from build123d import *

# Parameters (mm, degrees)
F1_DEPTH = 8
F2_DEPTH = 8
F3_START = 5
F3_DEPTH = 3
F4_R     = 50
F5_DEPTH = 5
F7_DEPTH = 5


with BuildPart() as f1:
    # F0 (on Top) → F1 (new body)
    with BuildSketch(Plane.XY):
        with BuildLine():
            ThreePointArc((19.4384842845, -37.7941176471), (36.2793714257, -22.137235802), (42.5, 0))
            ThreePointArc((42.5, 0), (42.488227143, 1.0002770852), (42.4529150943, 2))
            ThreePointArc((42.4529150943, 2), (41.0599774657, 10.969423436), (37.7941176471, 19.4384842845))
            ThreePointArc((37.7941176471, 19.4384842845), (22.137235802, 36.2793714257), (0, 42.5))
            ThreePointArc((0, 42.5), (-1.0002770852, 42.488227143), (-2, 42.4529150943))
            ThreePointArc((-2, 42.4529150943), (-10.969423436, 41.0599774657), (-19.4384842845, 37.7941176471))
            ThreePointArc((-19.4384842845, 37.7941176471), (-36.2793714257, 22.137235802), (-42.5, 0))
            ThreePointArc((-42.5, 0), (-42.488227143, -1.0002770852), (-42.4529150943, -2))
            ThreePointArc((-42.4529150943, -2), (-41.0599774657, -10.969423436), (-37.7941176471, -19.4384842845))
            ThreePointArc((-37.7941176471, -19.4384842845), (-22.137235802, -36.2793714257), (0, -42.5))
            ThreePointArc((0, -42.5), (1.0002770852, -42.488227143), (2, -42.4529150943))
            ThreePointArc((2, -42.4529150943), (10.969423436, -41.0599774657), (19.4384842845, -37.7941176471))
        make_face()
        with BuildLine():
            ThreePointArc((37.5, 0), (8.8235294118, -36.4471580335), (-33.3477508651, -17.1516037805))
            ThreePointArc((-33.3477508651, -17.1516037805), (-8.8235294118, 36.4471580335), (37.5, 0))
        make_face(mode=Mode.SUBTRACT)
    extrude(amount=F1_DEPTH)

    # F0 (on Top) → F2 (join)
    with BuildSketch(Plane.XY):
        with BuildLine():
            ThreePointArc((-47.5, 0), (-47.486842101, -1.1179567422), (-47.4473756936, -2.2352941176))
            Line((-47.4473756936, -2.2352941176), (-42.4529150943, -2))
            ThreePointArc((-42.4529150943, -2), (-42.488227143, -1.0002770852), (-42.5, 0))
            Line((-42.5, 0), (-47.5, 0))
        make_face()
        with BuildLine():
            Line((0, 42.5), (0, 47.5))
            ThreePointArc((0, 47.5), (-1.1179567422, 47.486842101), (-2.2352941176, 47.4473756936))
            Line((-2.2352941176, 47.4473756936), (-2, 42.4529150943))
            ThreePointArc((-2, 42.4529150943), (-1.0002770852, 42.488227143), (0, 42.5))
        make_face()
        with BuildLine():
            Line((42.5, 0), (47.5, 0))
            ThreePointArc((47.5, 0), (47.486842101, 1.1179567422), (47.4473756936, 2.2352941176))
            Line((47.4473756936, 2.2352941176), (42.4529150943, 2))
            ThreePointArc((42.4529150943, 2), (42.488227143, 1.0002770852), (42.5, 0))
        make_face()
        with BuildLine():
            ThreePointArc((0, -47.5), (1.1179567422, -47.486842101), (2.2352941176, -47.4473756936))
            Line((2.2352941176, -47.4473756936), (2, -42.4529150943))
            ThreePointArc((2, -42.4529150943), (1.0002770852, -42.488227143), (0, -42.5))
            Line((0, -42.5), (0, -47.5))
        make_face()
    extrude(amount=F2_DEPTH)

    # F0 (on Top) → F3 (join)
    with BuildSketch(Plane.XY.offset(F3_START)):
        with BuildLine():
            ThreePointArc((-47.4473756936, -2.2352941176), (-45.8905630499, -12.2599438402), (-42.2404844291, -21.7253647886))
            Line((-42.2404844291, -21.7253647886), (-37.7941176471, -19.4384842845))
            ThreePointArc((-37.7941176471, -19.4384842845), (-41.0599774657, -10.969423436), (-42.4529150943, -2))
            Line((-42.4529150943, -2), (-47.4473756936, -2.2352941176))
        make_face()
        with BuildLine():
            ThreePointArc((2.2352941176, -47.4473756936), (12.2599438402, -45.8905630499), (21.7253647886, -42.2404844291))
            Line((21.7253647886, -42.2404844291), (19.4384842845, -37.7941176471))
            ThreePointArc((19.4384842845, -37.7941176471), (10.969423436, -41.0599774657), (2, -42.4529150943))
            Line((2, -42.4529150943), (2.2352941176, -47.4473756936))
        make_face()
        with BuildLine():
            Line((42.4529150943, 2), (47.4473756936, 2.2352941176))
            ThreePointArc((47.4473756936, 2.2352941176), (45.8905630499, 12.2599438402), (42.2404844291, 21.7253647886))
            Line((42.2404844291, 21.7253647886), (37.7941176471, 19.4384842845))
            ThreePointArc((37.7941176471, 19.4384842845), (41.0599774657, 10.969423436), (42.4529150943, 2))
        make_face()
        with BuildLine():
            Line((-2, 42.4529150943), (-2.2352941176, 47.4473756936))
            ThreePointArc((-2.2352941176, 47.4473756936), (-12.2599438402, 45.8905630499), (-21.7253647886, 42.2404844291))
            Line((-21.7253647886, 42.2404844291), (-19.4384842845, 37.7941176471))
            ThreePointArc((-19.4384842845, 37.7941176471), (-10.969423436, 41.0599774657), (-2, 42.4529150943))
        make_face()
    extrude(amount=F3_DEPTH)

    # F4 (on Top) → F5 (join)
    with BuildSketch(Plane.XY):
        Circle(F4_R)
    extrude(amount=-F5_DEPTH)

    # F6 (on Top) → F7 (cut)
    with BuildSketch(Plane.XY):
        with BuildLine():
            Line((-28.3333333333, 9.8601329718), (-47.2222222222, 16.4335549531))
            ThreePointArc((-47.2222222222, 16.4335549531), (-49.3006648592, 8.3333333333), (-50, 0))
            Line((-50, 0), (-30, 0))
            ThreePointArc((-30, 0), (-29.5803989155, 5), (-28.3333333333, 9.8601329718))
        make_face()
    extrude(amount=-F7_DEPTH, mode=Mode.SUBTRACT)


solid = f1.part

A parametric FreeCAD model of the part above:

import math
import FreeCAD as App
import Part
import Sketcher
from FreeCAD import Vector
Q = App.Units.Quantity

doc = App.newDocument("Part")
body = doc.addObject("PartDesign::Body", "Body")

# Sketch on XY plane
sketch1 = body.newObject("Sketcher::SketchObject", "Sketch")
sketch1.AttachmentSupport = (doc.getObject("XY_Plane"), [""])
sketch1.MapMode = "FlatFace"
sketch1.addGeometry(Part.ArcOfCircle(Part.Circle(Vector(0, 0, 0), Vector(0, 0, 1), 42.5), math.radians(-62.782079), math.radians(0)), False)
sketch1.addGeometry(Part.ArcOfCircle(Part.Circle(Vector(0, 0, 0), Vector(0, 0, 1), 42.5), math.radians(0), math.radians(2.697268)), False)
sketch1.addGeometry(Part.ArcOfCircle(Part.Circle(Vector(0, 0, 0), Vector(0, 0, 1), 42.5), math.radians(2.697268), math.radians(27.217921)), False)
sketch1.addGeometry(Part.ArcOfCircle(Part.Circle(Vector(0, 0, 0), Vector(0, 0, 1), 42.5), math.radians(27.217921), math.radians(90)), False)
sketch1.addGeometry(Part.ArcOfCircle(Part.Circle(Vector(0, 0, 0), Vector(0, 0, 1), 42.5), math.radians(90), math.radians(92.697268)), False)
sketch1.addGeometry(Part.ArcOfCircle(Part.Circle(Vector(0, 0, 0), Vector(0, 0, 1), 42.5), math.radians(92.697268), math.radians(117.217921)), False)
sketch1.addGeometry(Part.ArcOfCircle(Part.Circle(Vector(0, 0, 0), Vector(0, 0, 1), 42.5), math.radians(117.217921), math.radians(180)), False)
sketch1.addGeometry(Part.ArcOfCircle(Part.Circle(Vector(0, 0, 0), Vector(0, 0, 1), 42.5), math.radians(180), math.radians(182.697268)), False)
sketch1.addGeometry(Part.ArcOfCircle(Part.Circle(Vector(0, 0, 0), Vector(0, 0, 1), 42.5), math.radians(-177.302732), math.radians(-152.782079)), False)
sketch1.addGeometry(Part.ArcOfCircle(Part.Circle(Vector(0, 0, 0), Vector(0, 0, 1), 42.5), math.radians(-152.782079), math.radians(-90)), False)
sketch1.addGeometry(Part.ArcOfCircle(Part.Circle(Vector(0, 0, 0), Vector(0, 0, 1), 42.5), math.radians(-90), math.radians(-87.302732)), False)
sketch1.addGeometry(Part.ArcOfCircle(Part.Circle(Vector(0, 0, 0), Vector(0, 0, 1), 42.5), math.radians(-87.302732), math.radians(-62.782079)), False)
sketch1.addGeometry(Part.ArcOfCircle(Part.Circle(Vector(0, 0, 0), Vector(0, 0, 1), 37.5), math.radians(0), math.radians(207.217921)), False)
sketch1.addGeometry(Part.ArcOfCircle(Part.Circle(Vector(0, 0, 0), Vector(0, 0, 1), 37.5), math.radians(-152.782079), math.radians(0)), False)
sketch1.addConstraint(Sketcher.Constraint("Tangent", 0, 2, 1, 1))
sketch1.addConstraint(Sketcher.Constraint("Tangent", 1, 2, 2, 1))
sketch1.addConstraint(Sketcher.Constraint("Tangent", 2, 2, 3, 1))
sketch1.addConstraint(Sketcher.Constraint("Tangent", 3, 2, 4, 1))
sketch1.addConstraint(Sketcher.Constraint("Tangent", 4, 2, 5, 1))
sketch1.addConstraint(Sketcher.Constraint("Tangent", 5, 2, 6, 1))
sketch1.addConstraint(Sketcher.Constraint("Tangent", 6, 2, 7, 1))
sketch1.addConstraint(Sketcher.Constraint("Tangent", 7, 2, 8, 1))
sketch1.addConstraint(Sketcher.Constraint("Tangent", 8, 2, 9, 1))
sketch1.addConstraint(Sketcher.Constraint("Tangent", 9, 2, 10, 1))
sketch1.addConstraint(Sketcher.Constraint("Tangent", 10, 2, 11, 1))
sketch1.addConstraint(Sketcher.Constraint("Tangent", 11, 2, 0, 1))
sketch1.addConstraint(Sketcher.Constraint("Tangent", 12, 1, 13, 2))
sketch1.addConstraint(Sketcher.Constraint("Coincident", 13, 1, 12, 2))
sketch1.addConstraint(Sketcher.Constraint("Coincident", 0, 3, -1, 1))
sketch1.addConstraint(Sketcher.Constraint("Coincident", 2, 3, -1, 1))
sketch1.addConstraint(Sketcher.Constraint("Coincident", 4, 3, -1, 1))
sketch1.addConstraint(Sketcher.Constraint("Coincident", 6, 3, -1, 1))
sketch1.addConstraint(Sketcher.Constraint("Coincident", 8, 3, -1, 1))
sketch1.addConstraint(Sketcher.Constraint("Coincident", 12, 3, -1, 1))
sketch1.addConstraint(Sketcher.Constraint("Equal", 8, 9))
sketch1.addConstraint(Sketcher.Constraint("PointOnObject", 0, 2, -1))
sketch1.addConstraint(Sketcher.Constraint("PointOnObject", 3, 2, -2))
sketch1.addConstraint(Sketcher.Constraint("PointOnObject", 6, 2, -1))
sketch1.addConstraint(Sketcher.Constraint("PointOnObject", 9, 2, -2))
sketch1.addConstraint(Sketcher.Constraint("PointOnObject", 12, 1, -1))
sketch1.addConstraint(Sketcher.Constraint("Radius", 0, Q("42.5 mm")))
sketch1.addConstraint(Sketcher.Constraint("Radius", 12, Q("37.5 mm")))
sketch1.addConstraint(Sketcher.Constraint("DistanceY", -1, 1, 1, 2, Q("2 mm")))
sketch1.addConstraint(Sketcher.Constraint("DistanceX", 4, 2, -1, 1, Q("2 mm")))
sketch1.addConstraint(Sketcher.Constraint("DistanceY", 7, 2, -1, 1, Q("2 mm")))
sketch1.addConstraint(Sketcher.Constraint("DistanceX", -1, 1, 10, 2, Q("2 mm")))
sketch1.addConstraint(Sketcher.Constraint("DistanceX", 13, 1, -1, 1, Q("33.347751 mm")))
sketch1.addConstraint(Sketcher.Constraint("DistanceY", 8, 2, 13, 1, Q("2.286881 mm")))
sketch1.addConstraint(Sketcher.Constraint("DistanceX", -1, 1, 2, 2, Q("37.794118 mm")))
sketch1.addConstraint(Sketcher.Constraint("DistanceX", 5, 2, -1, 1, Q("19.438484 mm")))
sketch1.addConstraint(Sketcher.Constraint("DistanceX", -1, 1, 11, 2, Q("19.438484 mm")))
pad1 = body.newObject("PartDesign::Pad", "Pad")
pad1.Profile = sketch1
pad1.Length = 8

# Sketch on XY plane
sketch2 = body.newObject("Sketcher::SketchObject", "Sketch001")
sketch2.AttachmentSupport = (doc.getObject("XY_Plane"), [""])
sketch2.MapMode = "FlatFace"
sketch2.addGeometry(Part.ArcOfCircle(Part.Circle(Vector(0, 0, 0), Vector(0, 0, 1), 47.5), math.radians(180), math.radians(182.697268)), False)
sketch2.addGeometry(Part.LineSegment(Vector(-47.447376, -2.235294, 0), Vector(-42.452915, -2, 0)), False)
sketch2.addGeometry(Part.ArcOfCircle(Part.Circle(Vector(0, 0, 0), Vector(0, 0, 1), 42.5), math.radians(180), math.radians(182.697268)), False)
sketch2.addGeometry(Part.LineSegment(Vector(-42.5, 0, 0), Vector(-47.5, 0, 0)), False)
sketch2.addGeometry(Part.LineSegment(Vector(0, 42.5, 0), Vector(0, 47.5, 0)), False)
sketch2.addGeometry(Part.ArcOfCircle(Part.Circle(Vector(0, 0, 0), Vector(0, 0, 1), 47.5), math.radians(90), math.radians(92.697268)), False)
sketch2.addGeometry(Part.LineSegment(Vector(-2.235294, 47.447376, 0), Vector(-2, 42.452915, 0)), False)
sketch2.addGeometry(Part.ArcOfCircle(Part.Circle(Vector(0, 0, 0), Vector(0, 0, 1), 42.5), math.radians(90), math.radians(92.697268)), False)
sketch2.addGeometry(Part.LineSegment(Vector(42.5, 0, 0), Vector(47.5, 0, 0)), False)
sketch2.addGeometry(Part.ArcOfCircle(Part.Circle(Vector(0, 0, 0), Vector(0, 0, 1), 47.5), math.radians(0), math.radians(2.697268)), False)
sketch2.addGeometry(Part.LineSegment(Vector(47.447376, 2.235294, 0), Vector(42.452915, 2, 0)), False)
sketch2.addGeometry(Part.ArcOfCircle(Part.Circle(Vector(0, 0, 0), Vector(0, 0, 1), 42.5), math.radians(0), math.radians(2.697268)), False)
sketch2.addGeometry(Part.ArcOfCircle(Part.Circle(Vector(0, 0, 0), Vector(0, 0, 1), 47.5), math.radians(-90), math.radians(-87.302732)), False)
sketch2.addGeometry(Part.LineSegment(Vector(2.235294, -47.447376, 0), Vector(2, -42.452915, 0)), False)
sketch2.addGeometry(Part.ArcOfCircle(Part.Circle(Vector(0, 0, 0), Vector(0, 0, 1), 42.5), math.radians(-90), math.radians(-87.302732)), False)
sketch2.addGeometry(Part.LineSegment(Vector(0, -42.5, 0), Vector(0, -47.5, 0)), False)
sketch2.addConstraint(Sketcher.Constraint("Coincident", 0, 2, 1, 1))
sketch2.addConstraint(Sketcher.Constraint("Coincident", 1, 2, 2, 2))
sketch2.addConstraint(Sketcher.Constraint("Coincident", 2, 1, 3, 1))
sketch2.addConstraint(Sketcher.Constraint("Coincident", 3, 2, 0, 1))
sketch2.addConstraint(Sketcher.Constraint("Coincident", 4, 2, 5, 1))
sketch2.addConstraint(Sketcher.Constraint("Coincident", 5, 2, 6, 1))
sketch2.addConstraint(Sketcher.Constraint("Coincident", 6, 2, 7, 2))
sketch2.addConstraint(Sketcher.Constraint("Coincident", 7, 1, 4, 1))
sketch2.addConstraint(Sketcher.Constraint("Coincident", 8, 2, 9, 1))
sketch2.addConstraint(Sketcher.Constraint("Coincident", 9, 2, 10, 1))
sketch2.addConstraint(Sketcher.Constraint("Coincident", 10, 2, 11, 2))
sketch2.addConstraint(Sketcher.Constraint("Coincident", 11, 1, 8, 1))
sketch2.addConstraint(Sketcher.Constraint("Coincident", 12, 2, 13, 1))
sketch2.addConstraint(Sketcher.Constraint("Coincident", 13, 2, 14, 2))
sketch2.addConstraint(Sketcher.Constraint("Coincident", 14, 1, 15, 1))
sketch2.addConstraint(Sketcher.Constraint("Coincident", 15, 2, 12, 1))
sketch2.addConstraint(Sketcher.Constraint("Horizontal", 3))
sketch2.addConstraint(Sketcher.Constraint("Vertical", 4))
sketch2.addConstraint(Sketcher.Constraint("Horizontal", 8))
sketch2.addConstraint(Sketcher.Constraint("Vertical", 15))
sketch2.addConstraint(Sketcher.Constraint("Coincident", 0, 3, -1, 1))
sketch2.addConstraint(Sketcher.Constraint("Coincident", 2, 3, -1, 1))
sketch2.addConstraint(Sketcher.Constraint("Coincident", 5, 3, -1, 1))
sketch2.addConstraint(Sketcher.Constraint("Coincident", 7, 3, -1, 1))
sketch2.addConstraint(Sketcher.Constraint("Coincident", 9, 3, -1, 1))
sketch2.addConstraint(Sketcher.Constraint("Coincident", 11, 3, -1, 1))
sketch2.addConstraint(Sketcher.Constraint("Coincident", 12, 3, -1, 1))
sketch2.addConstraint(Sketcher.Constraint("Coincident", 14, 3, -1, 1))
sketch2.addConstraint(Sketcher.Constraint("Equal", 0, 5))
sketch2.addConstraint(Sketcher.Constraint("Equal", 2, 7))
sketch2.addConstraint(Sketcher.Constraint("Equal", 5, 9))
sketch2.addConstraint(Sketcher.Constraint("Equal", 7, 11))
sketch2.addConstraint(Sketcher.Constraint("Equal", 9, 12))
sketch2.addConstraint(Sketcher.Constraint("Equal", 11, 14))
sketch2.addConstraint(Sketcher.Constraint("PointOnObject", 2, 1, -1))
sketch2.addConstraint(Sketcher.Constraint("PointOnObject", 4, 2, -2))
sketch2.addConstraint(Sketcher.Constraint("PointOnObject", 8, 2, -1))
sketch2.addConstraint(Sketcher.Constraint("PointOnObject", 14, 1, -2))
sketch2.addConstraint(Sketcher.Constraint("Perpendicular", 1, 6))
sketch2.addConstraint(Sketcher.Constraint("Perpendicular", 6, 10))
sketch2.addConstraint(Sketcher.Constraint("Perpendicular", 10, 13))
sketch2.addConstraint(Sketcher.Constraint("Radius", 0, Q("47.5 mm")))
sketch2.addConstraint(Sketcher.Constraint("Radius", 2, Q("42.5 mm")))
sketch2.addConstraint(Sketcher.Constraint("DistanceY", 1, 2, -1, 1, Q("2 mm")))
sketch2.addConstraint(Sketcher.Constraint("DistanceX", 6, 2, -1, 1, Q("2 mm")))
sketch2.addConstraint(Sketcher.Constraint("DistanceY", -1, 1, 10, 2, Q("2 mm")))
sketch2.addConstraint(Sketcher.Constraint("DistanceX", -1, 1, 13, 2, Q("2 mm")))
sketch2.addConstraint(Sketcher.Constraint("DistanceX", 0, 2, 1, 2, Q("4.994461 mm")))
pad2 = body.newObject("PartDesign::Pad", "Pad001")
pad2.Profile = sketch2
pad2.Length = 8

# Sketch on XY plane
sketch3 = body.newObject("Sketcher::SketchObject", "Sketch002")
sketch3.AttachmentSupport = (doc.getObject("XY_Plane"), [""])
sketch3.MapMode = "FlatFace"
sketch3.AttachmentOffset = App.Placement(Vector(0, 0, 5), App.Rotation())
sketch3.addGeometry(Part.ArcOfCircle(Part.Circle(Vector(0, 0, 0), Vector(0, 0, 1), 47.5), math.radians(-177.302732), math.radians(-152.782079)), False)
sketch3.addGeometry(Part.LineSegment(Vector(-42.240484, -21.725365, 0), Vector(-37.794118, -19.438484, 0)), False)
sketch3.addGeometry(Part.ArcOfCircle(Part.Circle(Vector(0, 0, 0), Vector(0, 0, 1), 42.5), math.radians(-177.302732), math.radians(-152.782079)), False)
sketch3.addGeometry(Part.LineSegment(Vector(-42.452915, -2, 0), Vector(-47.447376, -2.235294, 0)), False)
sketch3.addGeometry(Part.ArcOfCircle(Part.Circle(Vector(0, 0, 0), Vector(0, 0, 1), 47.5), math.radians(-87.302732), math.radians(-62.782079)), False)
sketch3.addGeometry(Part.LineSegment(Vector(21.725365, -42.240484, 0), Vector(19.438484, -37.794118, 0)), False)
sketch3.addGeometry(Part.ArcOfCircle(Part.Circle(Vector(0, 0, 0), Vector(0, 0, 1), 42.5), math.radians(-87.302732), math.radians(-62.782079)), False)
sketch3.addGeometry(Part.LineSegment(Vector(2, -42.452915, 0), Vector(2.235294, -47.447376, 0)), False)
sketch3.addGeometry(Part.LineSegment(Vector(42.452915, 2, 0), Vector(47.447376, 2.235294, 0)), False)
sketch3.addGeometry(Part.ArcOfCircle(Part.Circle(Vector(0, 0, 0), Vector(0, 0, 1), 47.5), math.radians(2.697268), math.radians(27.217921)), False)
sketch3.addGeometry(Part.LineSegment(Vector(42.240484, 21.725365, 0), Vector(37.794118, 19.438484, 0)), False)
sketch3.addGeometry(Part.ArcOfCircle(Part.Circle(Vector(0, 0, 0), Vector(0, 0, 1), 42.5), math.radians(2.697268), math.radians(27.217921)), False)
sketch3.addGeometry(Part.LineSegment(Vector(-2, 42.452915, 0), Vector(-2.235294, 47.447376, 0)), False)
sketch3.addGeometry(Part.ArcOfCircle(Part.Circle(Vector(0, 0, 0), Vector(0, 0, 1), 47.5), math.radians(92.697268), math.radians(117.217921)), False)
sketch3.addGeometry(Part.LineSegment(Vector(-21.725365, 42.240484, 0), Vector(-19.438484, 37.794118, 0)), False)
sketch3.addGeometry(Part.ArcOfCircle(Part.Circle(Vector(0, 0, 0), Vector(0, 0, 1), 42.5), math.radians(92.697268), math.radians(117.217921)), False)
sketch3.addConstraint(Sketcher.Constraint("Coincident", 0, 2, 1, 1))
sketch3.addConstraint(Sketcher.Constraint("Coincident", 1, 2, 2, 2))
sketch3.addConstraint(Sketcher.Constraint("Coincident", 2, 1, 3, 1))
sketch3.addConstraint(Sketcher.Constraint("Coincident", 3, 2, 0, 1))
sketch3.addConstraint(Sketcher.Constraint("Coincident", 4, 2, 5, 1))
sketch3.addConstraint(Sketcher.Constraint("Coincident", 5, 2, 6, 2))
sketch3.addConstraint(Sketcher.Constraint("Coincident", 6, 1, 7, 1))
sketch3.addConstraint(Sketcher.Constraint("Coincident", 7, 2, 4, 1))
sketch3.addConstraint(Sketcher.Constraint("Coincident", 8, 2, 9, 1))
sketch3.addConstraint(Sketcher.Constraint("Coincident", 9, 2, 10, 1))
sketch3.addConstraint(Sketcher.Constraint("Coincident", 10, 2, 11, 2))
sketch3.addConstraint(Sketcher.Constraint("Coincident", 11, 1, 8, 1))
sketch3.addConstraint(Sketcher.Constraint("Coincident", 12, 2, 13, 1))
sketch3.addConstraint(Sketcher.Constraint("Coincident", 13, 2, 14, 1))
sketch3.addConstraint(Sketcher.Constraint("Coincident", 14, 2, 15, 2))
sketch3.addConstraint(Sketcher.Constraint("Coincident", 15, 1, 12, 1))
sketch3.addConstraint(Sketcher.Constraint("Coincident", 0, 3, -1, 1))
sketch3.addConstraint(Sketcher.Constraint("Coincident", 2, 3, -1, 1))
sketch3.addConstraint(Sketcher.Constraint("Coincident", 4, 3, -1, 1))
sketch3.addConstraint(Sketcher.Constraint("Coincident", 6, 3, -1, 1))
sketch3.addConstraint(Sketcher.Constraint("Coincident", 9, 3, -1, 1))
sketch3.addConstraint(Sketcher.Constraint("Coincident", 11, 3, -1, 1))
sketch3.addConstraint(Sketcher.Constraint("Coincident", 13, 3, -1, 1))
sketch3.addConstraint(Sketcher.Constraint("Coincident", 15, 3, -1, 1))
sketch3.addConstraint(Sketcher.Constraint("Equal", 0, 4))
sketch3.addConstraint(Sketcher.Constraint("Equal", 2, 6))
sketch3.addConstraint(Sketcher.Constraint("Equal", 4, 9))
sketch3.addConstraint(Sketcher.Constraint("Equal", 6, 11))
sketch3.addConstraint(Sketcher.Constraint("Equal", 9, 13))
sketch3.addConstraint(Sketcher.Constraint("Equal", 11, 15))
sketch3.addConstraint(Sketcher.Constraint("Perpendicular", 1, 5))
sketch3.addConstraint(Sketcher.Constraint("Perpendicular", 3, 7))
sketch3.addConstraint(Sketcher.Constraint("Perpendicular", 7, 8))
sketch3.addConstraint(Sketcher.Constraint("Perpendicular", 5, 10))
sketch3.addConstraint(Sketcher.Constraint("Perpendicular", 8, 12))
sketch3.addConstraint(Sketcher.Constraint("Perpendicular", 10, 14))
sketch3.addConstraint(Sketcher.Constraint("Radius", 0, Q("47.5 mm")))
sketch3.addConstraint(Sketcher.Constraint("Radius", 2, Q("42.5 mm")))
sketch3.addConstraint(Sketcher.Constraint("DistanceY", 2, 1, -1, 1, Q("2 mm")))
sketch3.addConstraint(Sketcher.Constraint("DistanceX", -1, 1, 6, 1, Q("2 mm")))
sketch3.addConstraint(Sketcher.Constraint("DistanceY", -1, 1, 11, 1, Q("2 mm")))
sketch3.addConstraint(Sketcher.Constraint("DistanceX", 15, 1, -1, 1, Q("2 mm")))
sketch3.addConstraint(Sketcher.Constraint("DistanceY", 0, 2, 1, 2, Q("2.286881 mm")))
sketch3.addConstraint(Sketcher.Constraint("DistanceX", 2, 1, 0, 2, Q("0.212431 mm")))
sketch3.addConstraint(Sketcher.Constraint("DistanceX", 3, 2, 2, 1, Q("4.994461 mm")))
sketch3.addConstraint(Sketcher.Constraint("DistanceY", 6, 1, 4, 2, Q("0.212431 mm")))
sketch3.addConstraint(Sketcher.Constraint("DistanceX", 9, 2, 8, 2, Q("5.206891 mm")))
sketch3.addConstraint(Sketcher.Constraint("DistanceX", 13, 2, 12, 2, Q("19.490071 mm")))
pad3 = body.newObject("PartDesign::Pad", "Pad002")
pad3.Profile = sketch3
pad3.Length = 3

# Sketch on XY plane
sketch4 = body.newObject("Sketcher::SketchObject", "Sketch003")
sketch4.AttachmentSupport = (doc.getObject("XY_Plane"), [""])
sketch4.MapMode = "FlatFace"
sketch4.addGeometry(Part.Circle(Vector(0, 0, 0), Vector(0, 0, 1), 50), False)
sketch4.addConstraint(Sketcher.Constraint("Coincident", 0, 3, -1, 1))
sketch4.addConstraint(Sketcher.Constraint("Diameter", 0, Q("100 mm")))
pad4 = body.newObject("PartDesign::Pad", "Pad003")
pad4.Profile = sketch4
pad4.Length = 5
pad4.Reversed = True

# Sketch on XY plane
sketch5 = body.newObject("Sketcher::SketchObject", "Sketch004")
sketch5.AttachmentSupport = (doc.getObject("XY_Plane"), [""])
sketch5.MapMode = "FlatFace"
sketch5.addGeometry(Part.LineSegment(Vector(-28.333333, 9.860133, 0), Vector(-47.222222, 16.433555, 0)), False)
sketch5.addGeometry(Part.ArcOfCircle(Part.Circle(Vector(0, 0, 0), Vector(0, 0, 1), 50), math.radians(160.811864), math.radians(180)), False)
sketch5.addGeometry(Part.LineSegment(Vector(-50, 0, 0), Vector(-30, 0, 0)), False)
sketch5.addGeometry(Part.ArcOfCircle(Part.Circle(Vector(0, 0, 0), Vector(0, 0, 1), 30), math.radians(160.811864), math.radians(180)), False)
sketch5.addConstraint(Sketcher.Constraint("Coincident", 0, 2, 1, 1))
sketch5.addConstraint(Sketcher.Constraint("Coincident", 1, 2, 2, 1))
sketch5.addConstraint(Sketcher.Constraint("Coincident", 2, 2, 3, 2))
sketch5.addConstraint(Sketcher.Constraint("Coincident", 3, 1, 0, 1))
sketch5.addConstraint(Sketcher.Constraint("Horizontal", 2))
sketch5.addConstraint(Sketcher.Constraint("Coincident", 1, 3, -1, 1))
sketch5.addConstraint(Sketcher.Constraint("Coincident", 3, 3, -1, 1))
sketch5.addConstraint(Sketcher.Constraint("PointOnObject", 1, 2, -1))
sketch5.addConstraint(Sketcher.Constraint("Radius", 1, Q("50 mm")))
sketch5.addConstraint(Sketcher.Constraint("Radius", 3, Q("30 mm")))
sketch5.addConstraint(Sketcher.Constraint("DistanceX", 0, 2, 3, 1, Q("18.888889 mm")))
sketch5.addConstraint(Sketcher.Constraint("DistanceX", 0, 2, -1, 1, Q("47.222222 mm")))
pocket1 = body.newObject("PartDesign::Pocket", "Pocket")
pocket1.Profile = sketch5
pocket1.Length = 5

doc.recompute()
